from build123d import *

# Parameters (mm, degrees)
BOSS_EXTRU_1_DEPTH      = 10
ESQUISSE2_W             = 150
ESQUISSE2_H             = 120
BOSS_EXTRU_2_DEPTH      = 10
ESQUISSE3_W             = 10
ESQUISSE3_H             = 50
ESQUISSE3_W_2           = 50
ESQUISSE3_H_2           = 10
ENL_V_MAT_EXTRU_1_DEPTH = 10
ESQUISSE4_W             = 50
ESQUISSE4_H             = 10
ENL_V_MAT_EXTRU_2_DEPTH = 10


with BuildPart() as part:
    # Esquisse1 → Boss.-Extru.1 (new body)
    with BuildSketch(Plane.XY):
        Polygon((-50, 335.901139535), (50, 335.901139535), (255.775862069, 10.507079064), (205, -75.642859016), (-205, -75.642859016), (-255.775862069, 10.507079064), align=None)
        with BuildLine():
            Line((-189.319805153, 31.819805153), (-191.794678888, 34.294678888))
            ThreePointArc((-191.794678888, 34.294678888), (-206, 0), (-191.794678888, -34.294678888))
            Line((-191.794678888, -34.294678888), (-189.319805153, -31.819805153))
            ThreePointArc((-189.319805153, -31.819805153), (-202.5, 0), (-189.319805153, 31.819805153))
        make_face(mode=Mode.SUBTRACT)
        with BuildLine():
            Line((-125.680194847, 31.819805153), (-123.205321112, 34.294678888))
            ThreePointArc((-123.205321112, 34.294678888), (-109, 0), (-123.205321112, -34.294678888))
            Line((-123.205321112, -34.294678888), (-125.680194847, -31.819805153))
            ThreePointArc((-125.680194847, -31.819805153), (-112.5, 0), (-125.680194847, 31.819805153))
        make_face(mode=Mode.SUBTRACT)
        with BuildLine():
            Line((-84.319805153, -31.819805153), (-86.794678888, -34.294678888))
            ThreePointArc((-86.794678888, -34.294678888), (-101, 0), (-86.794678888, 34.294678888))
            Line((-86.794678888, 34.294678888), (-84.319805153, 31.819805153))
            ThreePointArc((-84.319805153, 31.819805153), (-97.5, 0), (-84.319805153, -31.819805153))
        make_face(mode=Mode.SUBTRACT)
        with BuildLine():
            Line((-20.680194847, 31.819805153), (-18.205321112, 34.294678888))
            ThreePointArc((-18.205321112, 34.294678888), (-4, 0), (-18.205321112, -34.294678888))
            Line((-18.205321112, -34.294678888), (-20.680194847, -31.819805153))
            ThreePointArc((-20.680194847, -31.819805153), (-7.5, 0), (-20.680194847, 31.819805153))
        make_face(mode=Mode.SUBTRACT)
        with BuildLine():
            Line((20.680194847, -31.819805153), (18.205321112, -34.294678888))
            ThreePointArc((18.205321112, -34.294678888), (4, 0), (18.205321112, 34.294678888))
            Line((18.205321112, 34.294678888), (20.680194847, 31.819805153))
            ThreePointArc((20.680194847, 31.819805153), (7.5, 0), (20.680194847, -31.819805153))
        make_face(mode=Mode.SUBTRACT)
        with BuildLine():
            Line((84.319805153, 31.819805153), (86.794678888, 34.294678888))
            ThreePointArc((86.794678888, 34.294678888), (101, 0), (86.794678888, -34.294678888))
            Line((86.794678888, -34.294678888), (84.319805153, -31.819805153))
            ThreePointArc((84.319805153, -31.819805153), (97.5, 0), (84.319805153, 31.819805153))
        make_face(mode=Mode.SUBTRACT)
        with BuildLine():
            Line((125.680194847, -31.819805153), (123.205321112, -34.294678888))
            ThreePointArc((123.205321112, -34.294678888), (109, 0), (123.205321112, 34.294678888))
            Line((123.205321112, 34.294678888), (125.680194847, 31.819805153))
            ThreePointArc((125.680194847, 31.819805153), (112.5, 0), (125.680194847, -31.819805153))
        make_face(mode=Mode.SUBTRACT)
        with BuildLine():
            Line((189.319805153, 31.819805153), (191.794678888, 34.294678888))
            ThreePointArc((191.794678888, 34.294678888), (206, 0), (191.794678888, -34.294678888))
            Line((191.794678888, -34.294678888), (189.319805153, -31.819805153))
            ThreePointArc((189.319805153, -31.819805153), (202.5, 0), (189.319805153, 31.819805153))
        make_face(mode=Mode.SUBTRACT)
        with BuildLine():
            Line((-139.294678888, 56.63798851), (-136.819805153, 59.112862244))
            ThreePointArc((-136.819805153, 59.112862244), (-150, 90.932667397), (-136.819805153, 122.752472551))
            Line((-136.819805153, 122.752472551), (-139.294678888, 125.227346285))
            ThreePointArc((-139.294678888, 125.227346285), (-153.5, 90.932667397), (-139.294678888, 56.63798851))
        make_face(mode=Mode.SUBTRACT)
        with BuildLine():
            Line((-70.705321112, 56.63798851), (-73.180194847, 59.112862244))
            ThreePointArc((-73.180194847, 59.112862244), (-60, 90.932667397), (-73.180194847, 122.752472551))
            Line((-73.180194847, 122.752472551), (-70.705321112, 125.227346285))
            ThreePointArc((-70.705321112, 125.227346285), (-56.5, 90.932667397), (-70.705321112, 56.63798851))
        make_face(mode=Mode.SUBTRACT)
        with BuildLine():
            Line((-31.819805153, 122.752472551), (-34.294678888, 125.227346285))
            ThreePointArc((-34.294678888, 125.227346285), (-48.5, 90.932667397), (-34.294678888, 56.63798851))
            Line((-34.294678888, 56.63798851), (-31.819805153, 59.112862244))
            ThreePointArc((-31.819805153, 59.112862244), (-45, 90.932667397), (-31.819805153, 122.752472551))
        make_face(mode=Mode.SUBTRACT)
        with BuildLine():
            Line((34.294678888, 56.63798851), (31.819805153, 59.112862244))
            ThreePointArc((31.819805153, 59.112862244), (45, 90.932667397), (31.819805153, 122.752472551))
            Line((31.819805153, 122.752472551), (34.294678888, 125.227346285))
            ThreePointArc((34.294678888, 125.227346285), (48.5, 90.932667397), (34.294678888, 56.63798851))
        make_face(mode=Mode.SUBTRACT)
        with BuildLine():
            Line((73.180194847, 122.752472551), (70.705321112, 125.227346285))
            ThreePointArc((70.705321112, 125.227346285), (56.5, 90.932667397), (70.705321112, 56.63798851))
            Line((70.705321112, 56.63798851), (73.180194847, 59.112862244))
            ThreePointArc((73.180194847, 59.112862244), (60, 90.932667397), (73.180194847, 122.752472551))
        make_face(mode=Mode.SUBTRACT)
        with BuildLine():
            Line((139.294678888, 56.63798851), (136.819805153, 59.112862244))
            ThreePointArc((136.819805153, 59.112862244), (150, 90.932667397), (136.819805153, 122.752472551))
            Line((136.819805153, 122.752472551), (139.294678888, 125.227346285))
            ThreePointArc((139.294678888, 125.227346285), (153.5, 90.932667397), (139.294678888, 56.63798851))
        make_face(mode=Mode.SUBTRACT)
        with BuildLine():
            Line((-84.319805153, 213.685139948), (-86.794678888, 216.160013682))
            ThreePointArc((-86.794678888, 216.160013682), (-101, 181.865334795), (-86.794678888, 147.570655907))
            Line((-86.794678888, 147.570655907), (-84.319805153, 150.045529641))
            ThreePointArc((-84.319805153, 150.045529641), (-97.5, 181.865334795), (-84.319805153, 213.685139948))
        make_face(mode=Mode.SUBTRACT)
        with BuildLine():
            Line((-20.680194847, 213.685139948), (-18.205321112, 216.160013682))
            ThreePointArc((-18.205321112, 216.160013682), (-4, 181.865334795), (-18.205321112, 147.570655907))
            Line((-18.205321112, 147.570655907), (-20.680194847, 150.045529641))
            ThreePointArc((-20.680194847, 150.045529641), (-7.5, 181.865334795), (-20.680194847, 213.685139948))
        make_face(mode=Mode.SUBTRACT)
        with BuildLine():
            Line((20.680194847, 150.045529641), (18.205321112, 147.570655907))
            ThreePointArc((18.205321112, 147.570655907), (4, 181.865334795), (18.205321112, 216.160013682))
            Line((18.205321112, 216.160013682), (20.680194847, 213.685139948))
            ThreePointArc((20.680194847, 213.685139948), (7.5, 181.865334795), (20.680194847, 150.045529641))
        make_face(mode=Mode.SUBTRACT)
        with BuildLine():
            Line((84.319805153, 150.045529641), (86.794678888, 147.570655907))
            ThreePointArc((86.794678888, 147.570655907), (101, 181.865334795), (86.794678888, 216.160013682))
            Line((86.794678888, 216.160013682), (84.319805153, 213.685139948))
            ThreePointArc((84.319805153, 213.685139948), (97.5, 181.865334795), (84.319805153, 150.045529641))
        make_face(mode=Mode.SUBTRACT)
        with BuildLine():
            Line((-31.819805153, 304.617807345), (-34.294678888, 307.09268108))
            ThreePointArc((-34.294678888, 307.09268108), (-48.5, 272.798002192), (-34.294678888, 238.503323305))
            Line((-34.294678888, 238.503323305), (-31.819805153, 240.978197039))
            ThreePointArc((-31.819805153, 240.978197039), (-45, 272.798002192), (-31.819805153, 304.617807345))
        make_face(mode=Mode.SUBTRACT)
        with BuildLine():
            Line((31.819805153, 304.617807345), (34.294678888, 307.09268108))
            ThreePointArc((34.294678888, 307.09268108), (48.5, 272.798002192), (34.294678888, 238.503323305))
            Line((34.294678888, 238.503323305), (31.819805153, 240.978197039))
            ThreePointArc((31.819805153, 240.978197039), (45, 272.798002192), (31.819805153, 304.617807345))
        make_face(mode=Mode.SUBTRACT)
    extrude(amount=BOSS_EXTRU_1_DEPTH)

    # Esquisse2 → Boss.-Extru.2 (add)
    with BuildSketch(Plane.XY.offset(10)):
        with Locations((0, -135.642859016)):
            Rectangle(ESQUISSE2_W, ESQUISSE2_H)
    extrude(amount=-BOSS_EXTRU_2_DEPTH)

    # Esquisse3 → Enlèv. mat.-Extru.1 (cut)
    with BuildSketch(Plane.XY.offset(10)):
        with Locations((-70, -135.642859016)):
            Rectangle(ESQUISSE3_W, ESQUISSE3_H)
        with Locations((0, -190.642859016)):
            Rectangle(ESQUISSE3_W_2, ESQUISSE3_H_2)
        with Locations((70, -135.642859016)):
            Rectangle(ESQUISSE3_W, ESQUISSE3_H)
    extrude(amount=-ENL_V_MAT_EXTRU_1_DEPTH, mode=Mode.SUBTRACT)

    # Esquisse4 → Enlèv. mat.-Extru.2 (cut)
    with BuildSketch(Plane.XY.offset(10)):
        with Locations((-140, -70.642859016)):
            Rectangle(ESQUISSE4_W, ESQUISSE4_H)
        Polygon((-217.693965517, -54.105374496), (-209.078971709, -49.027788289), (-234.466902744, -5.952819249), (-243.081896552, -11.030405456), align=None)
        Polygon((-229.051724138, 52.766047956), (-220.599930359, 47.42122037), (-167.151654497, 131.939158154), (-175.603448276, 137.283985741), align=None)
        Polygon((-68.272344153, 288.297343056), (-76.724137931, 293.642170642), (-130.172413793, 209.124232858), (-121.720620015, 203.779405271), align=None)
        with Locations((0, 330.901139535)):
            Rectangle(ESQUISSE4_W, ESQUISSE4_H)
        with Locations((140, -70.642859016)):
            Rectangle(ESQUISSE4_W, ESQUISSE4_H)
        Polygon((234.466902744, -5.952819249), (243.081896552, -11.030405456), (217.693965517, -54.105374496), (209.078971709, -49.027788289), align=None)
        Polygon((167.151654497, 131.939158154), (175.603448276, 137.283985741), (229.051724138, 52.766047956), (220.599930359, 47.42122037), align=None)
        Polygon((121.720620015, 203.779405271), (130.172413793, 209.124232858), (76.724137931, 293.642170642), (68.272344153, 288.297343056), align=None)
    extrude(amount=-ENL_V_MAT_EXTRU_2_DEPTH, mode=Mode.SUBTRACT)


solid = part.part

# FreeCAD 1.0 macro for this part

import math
import FreeCAD as App
import Part
import Sketcher
Q = App.Units.Quantity

doc = App.newDocument("Part")
params = doc.addObject("Spreadsheet::Sheet", "Params")
for row, (alias, value) in enumerate([
    ("sketch1_radius", "45 mm"),
    ("sketch1_radius2", "48.5 mm"),
    ("sketch1_width", "100 mm"),
    ("sketch1_width2", "410 mm"),
    ("sketch1_length", "385 mm"),
    ("pad1_length", "10 mm"),
    ("sketch2_width", "150 mm"),
    ("sketch2_height", "120 mm"),
    ("pad2_length", "10 mm"),
    ("sketch3_width", "10 mm"),
    ("sketch3_width2", "50 mm"),
    ("pocket1_length", "10 mm"),
    ("sketch4_width", "50 mm"),
    ("sketch4_height", "10 mm"),
    ("sketch4_length", "10 mm"),
    ("sketch4_length2", "50 mm"),
    ("sketch4_length3", "100 mm"),
    ("pocket2_length", "10 mm"),
], start=1):
    params.set(f"A{row}", alias)
    params.set(f"B{row}", "=" + value)
    params.setAlias(f"B{row}", alias)

body = doc.addObject("PartDesign::Body", "Body")

# Sketch on XY plane
sketch1 = body.newObject("Sketcher::SketchObject", "Sketch")
sketch1.AttachmentSupport = (doc.getObject("XY_Plane"), [""])
sketch1.MapMode = "FlatFace"
sketch1.addGeometry([
    Part.LineSegment(App.Vector(50, 335.90114, 0), App.Vector(-50, 335.90114, 0)),  # 0
    Part.LineSegment(App.Vector(-50, 335.90114, 0), App.Vector(-255.775862, 10.507079, 0)),  # 1
    Part.LineSegment(App.Vector(-255.775862, 10.507079, 0), App.Vector(-205, -75.642859, 0)),  # 2
    Part.LineSegment(App.Vector(-205, -75.642859, 0), App.Vector(205, -75.642859, 0)),  # 3
    Part.LineSegment(App.Vector(205, -75.642859, 0), App.Vector(255.775862, 10.507079, 0)),  # 4
    Part.LineSegment(App.Vector(255.775862, 10.507079, 0), App.Vector(50, 335.90114, 0)),  # 5
    Part.LineSegment(App.Vector(189.319805, 31.819805, 0), App.Vector(191.794679, 34.294679, 0)),  # 6
    Part.ArcOfCircle(Part.Circle(App.Vector(157.5, 0, 0), App.Vector(0, 0, 1), 48.5), math.radians(-45), math.radians(45)),  # 7
    Part.LineSegment(App.Vector(191.794679, -34.294679, 0), App.Vector(189.319805, -31.819805, 0)),  # 8
    Part.ArcOfCircle(Part.Circle(App.Vector(157.5, 0, 0), App.Vector(0, 0, 1), 45), math.radians(-45), math.radians(45)),  # 9
    Part.LineSegment(App.Vector(125.680195, -31.819805, 0), App.Vector(123.205321, -34.294679, 0)),  # 10
    Part.ArcOfCircle(Part.Circle(App.Vector(157.5, 0, 0), App.Vector(0, 0, 1), 48.5), math.radians(135), math.radians(225)),  # 11
    Part.LineSegment(App.Vector(123.205321, 34.294679, 0), App.Vector(125.680195, 31.819805, 0)),  # 12
    Part.ArcOfCircle(Part.Circle(App.Vector(157.5, 0, 0), App.Vector(0, 0, 1), 45), math.radians(135), math.radians(225)),  # 13
    Part.LineSegment(App.Vector(84.319805, 31.819805, 0), App.Vector(86.794679, 34.294679, 0)),  # 14
    Part.ArcOfCircle(Part.Circle(App.Vector(52.5, 0, 0), App.Vector(0, 0, 1), 48.5), math.radians(-45), math.radians(45)),  # 15
    Part.LineSegment(App.Vector(86.794679, -34.294679, 0), App.Vector(84.319805, -31.819805, 0)),  # 16
    Part.ArcOfCircle(Part.Circle(App.Vector(52.5, 0, 0), App.Vector(0, 0, 1), 45), math.radians(-45), math.radians(45)),  # 17
    Part.LineSegment(App.Vector(20.680195, -31.819805, 0), App.Vector(18.205321, -34.294679, 0)),  # 18
    Part.ArcOfCircle(Part.Circle(App.Vector(52.5, 0, 0), App.Vector(0, 0, 1), 48.5), math.radians(135), math.radians(225)),  # 19
    Part.LineSegment(App.Vector(18.205321, 34.294679, 0), App.Vector(20.680195, 31.819805, 0)),  # 20
    Part.ArcOfCircle(Part.Circle(App.Vector(52.5, 0, 0), App.Vector(0, 0, 1), 45), math.radians(135), math.radians(225)),  # 21
    Part.LineSegment(App.Vector(139.294679, 56.637989, 0), App.Vector(136.819805, 59.112862, 0)),  # 22
    Part.ArcOfCircle(Part.Circle(App.Vector(105, 90.932667, 0), App.Vector(0, 0, 1), 45), math.radians(-45), math.radians(45)),  # 23
    Part.LineSegment(App.Vector(136.819805, 122.752473, 0), App.Vector(139.294679, 125.227346, 0)),  # 24
    Part.ArcOfCircle(Part.Circle(App.Vector(105, 90.932667, 0), App.Vector(0, 0, 1), 48.5), math.radians(-45), math.radians(45)),  # 25
    Part.ArcOfCircle(Part.Circle(App.Vector(105, 90.932667, 0), App.Vector(0, 0, 1), 45), math.radians(135), math.radians(225)),  # 26
    Part.LineSegment(App.Vector(73.180195, 59.112862, 0), App.Vector(70.705321, 56.637989, 0)),  # 27
    Part.ArcOfCircle(Part.Circle(App.Vector(105, 90.932667, 0), App.Vector(0, 0, 1), 48.5), math.radians(135), math.radians(225)),  # 28
    Part.LineSegment(App.Vector(70.705321, 125.227346, 0), App.Vector(73.180195, 122.752473, 0)),  # 29
    Part.LineSegment(App.Vector(34.294679, 56.637989, 0), App.Vector(31.819805, 59.112862, 0)),  # 30
    Part.ArcOfCircle(Part.Circle(App.Vector(0, 90.932667, 0), App.Vector(0, 0, 1), 45), math.radians(-45), math.radians(45)),  # 31
    Part.LineSegment(App.Vector(31.819805, 122.752473, 0), App.Vector(34.294679, 125.227346, 0)),  # 32
    Part.ArcOfCircle(Part.Circle(App.Vector(0, 90.932667, 0), App.Vector(0, 0, 1), 48.5), math.radians(-45), math.radians(45)),  # 33
    Part.LineSegment(App.Vector(-20.680195, 31.819805, 0), App.Vector(-18.205321, 34.294679, 0)),  # 34
    Part.ArcOfCircle(Part.Circle(App.Vector(-52.5, 0, 0), App.Vector(0, 0, 1), 48.5), math.radians(-45), math.radians(45)),  # 35
    Part.LineSegment(App.Vector(-18.205321, -34.294679, 0), App.Vector(-20.680195, -31.819805, 0)),  # 36
    Part.ArcOfCircle(Part.Circle(App.Vector(-52.5, 0, 0), App.Vector(0, 0, 1), 45), math.radians(-45), math.radians(45)),  # 37
    Part.LineSegment(App.Vector(-84.319805, -31.819805, 0), App.Vector(-86.794679, -34.294679, 0)),  # 38
    Part.ArcOfCircle(Part.Circle(App.Vector(-52.5, 0, 0), App.Vector(0, 0, 1), 48.5), math.radians(135), math.radians(225)),  # 39
    Part.LineSegment(App.Vector(-86.794679, 34.294679, 0), App.Vector(-84.319805, 31.819805, 0)),  # 40
    Part.ArcOfCircle(Part.Circle(App.Vector(-52.5, 0, 0), App.Vector(0, 0, 1), 45), math.radians(135), math.radians(225)),  # 41
    Part.LineSegment(App.Vector(-125.680195, 31.819805, 0), App.Vector(-123.205321, 34.294679, 0)),  # 42
    Part.ArcOfCircle(Part.Circle(App.Vector(-157.5, 0, 0), App.Vector(0, 0, 1), 48.5), math.radians(-45), math.radians(45)),  # 43
    Part.LineSegment(App.Vector(-123.205321, -34.294679, 0), App.Vector(-125.680195, -31.819805, 0)),  # 44
    Part.ArcOfCircle(Part.Circle(App.Vector(-157.5, 0, 0), App.Vector(0, 0, 1), 45), math.radians(-45), math.radians(45)),  # 45
    Part.ArcOfCircle(Part.Circle(App.Vector(-157.5, 0, 0), App.Vector(0, 0, 1), 45), math.radians(135), math.radians(225)),  # 46
    Part.LineSegment(App.Vector(-189.319805, -31.819805, 0), App.Vector(-191.794679, -34.294679, 0)),  # 47
    Part.ArcOfCircle(Part.Circle(App.Vector(-157.5, 0, 0), App.Vector(0, 0, 1), 48.5), math.radians(135), math.radians(225)),  # 48
    Part.LineSegment(App.Vector(-191.794679, 34.294679, 0), App.Vector(-189.319805, 31.819805, 0)),  # 49
    Part.ArcOfCircle(Part.Circle(App.Vector(0, 90.932667, 0), App.Vector(0, 0, 1), 45), math.radians(135), math.radians(225)),  # 50
    Part.LineSegment(App.Vector(-31.819805, 59.112862, 0), App.Vector(-34.294679, 56.637989, 0)),  # 51
    Part.ArcOfCircle(Part.Circle(App.Vector(0, 90.932667, 0), App.Vector(0, 0, 1), 48.5), math.radians(135), math.radians(225)),  # 52
    Part.LineSegment(App.Vector(-34.294679, 125.227346, 0), App.Vector(-31.819805, 122.752473, 0)),  # 53
    Part.LineSegment(App.Vector(-70.705321, 56.637989, 0), App.Vector(-73.180195, 59.112862, 0)),  # 54
    Part.ArcOfCircle(Part.Circle(App.Vector(-105, 90.932667, 0), App.Vector(0, 0, 1), 45), math.radians(-45), math.radians(45)),  # 55
    Part.LineSegment(App.Vector(-73.180195, 122.752473, 0), App.Vector(-70.705321, 125.227346, 0)),  # 56
    Part.ArcOfCircle(Part.Circle(App.Vector(-105, 90.932667, 0), App.Vector(0, 0, 1), 48.5), math.radians(-45), math.radians(45)),  # 57
    Part.ArcOfCircle(Part.Circle(App.Vector(-105, 90.932667, 0), App.Vector(0, 0, 1), 48.5), math.radians(135), math.radians(225)),  # 58
    Part.LineSegment(App.Vector(-139.294679, 125.227346, 0), App.Vector(-136.819805, 122.752473, 0)),  # 59
    Part.ArcOfCircle(Part.Circle(App.Vector(-105, 90.932667, 0), App.Vector(0, 0, 1), 45), math.radians(135), math.radians(225)),  # 60
    Part.LineSegment(App.Vector(-136.819805, 59.112862, 0), App.Vector(-139.294679, 56.637989, 0)),  # 61
    Part.ArcOfCircle(Part.Circle(App.Vector(52.5, 181.865335, 0), App.Vector(0, 0, 1), 45), math.radians(-45), math.radians(45)),  # 62
    Part.LineSegment(App.Vector(84.319805, 213.68514, 0), App.Vector(86.794679, 216.160014, 0)),  # 63
    Part.ArcOfCircle(Part.Circle(App.Vector(52.5, 181.865335, 0), App.Vector(0, 0, 1), 48.5), math.radians(-45), math.radians(45)),  # 64
    Part.LineSegment(App.Vector(86.794679, 147.570656, 0), App.Vector(84.319805, 150.04553, 0)),  # 65
    Part.LineSegment(App.Vector(20.680195, 150.04553, 0), App.Vector(18.205321, 147.570656, 0)),  # 66
    Part.ArcOfCircle(Part.Circle(App.Vector(52.5, 181.865335, 0), App.Vector(0, 0, 1), 48.5), math.radians(135), math.radians(225)),  # 67
    Part.LineSegment(App.Vector(18.205321, 216.160014, 0), App.Vector(20.680195, 213.68514, 0)),  # 68
    Part.ArcOfCircle(Part.Circle(App.Vector(52.5, 181.865335, 0), App.Vector(0, 0, 1), 45), math.radians(135), math.radians(225)),  # 69
    Part.LineSegment(App.Vector(31.819805, 304.617807, 0), App.Vector(34.294679, 307.092681, 0)),  # 70
    Part.ArcOfCircle(Part.Circle(App.Vector(0, 272.798002, 0), App.Vector(0, 0, 1), 48.5), math.radians(-45), math.radians(45)),  # 71
    Part.LineSegment(App.Vector(34.294679, 238.503323, 0), App.Vector(31.819805, 240.978197, 0)),  # 72
    Part.ArcOfCircle(Part.Circle(App.Vector(0, 272.798002, 0), App.Vector(0, 0, 1), 45), math.radians(-45), math.radians(45)),  # 73
    Part.LineSegment(App.Vector(-20.680195, 213.68514, 0), App.Vector(-18.205321, 216.160014, 0)),  # 74
    Part.ArcOfCircle(Part.Circle(App.Vector(-52.5, 181.865335, 0), App.Vector(0, 0, 1), 48.5), math.radians(-45), math.radians(45)),  # 75
    Part.LineSegment(App.Vector(-18.205321, 147.570656, 0), App.Vector(-20.680195, 150.04553, 0)),  # 76
    Part.ArcOfCircle(Part.Circle(App.Vector(-52.5, 181.865335, 0), App.Vector(0, 0, 1), 45), math.radians(-45), math.radians(45)),  # 77
    Part.ArcOfCircle(Part.Circle(App.Vector(-52.5, 181.865335, 0), App.Vector(0, 0, 1), 45), math.radians(135), math.radians(225)),  # 78
    Part.LineSegment(App.Vector(-84.319805, 150.04553, 0), App.Vector(-86.794679, 147.570656, 0)),  # 79
    Part.ArcOfCircle(Part.Circle(App.Vector(-52.5, 181.865335, 0), App.Vector(0, 0, 1), 48.5), math.radians(135), math.radians(225)),  # 80
    Part.LineSegment(App.Vector(-86.794679, 216.160014, 0), App.Vector(-84.319805, 213.68514, 0)),  # 81
    Part.ArcOfCircle(Part.Circle(App.Vector(0, 272.798002, 0), App.Vector(0, 0, 1), 45), math.radians(135), math.radians(225)),  # 82
    Part.LineSegment(App.Vector(-31.819805, 240.978197, 0), App.Vector(-34.294679, 238.503323, 0)),  # 83
    Part.ArcOfCircle(Part.Circle(App.Vector(0, 272.798002, 0), App.Vector(0, 0, 1), 48.5), math.radians(135), math.radians(225)),  # 84
    Part.LineSegment(App.Vector(-34.294679, 307.092681, 0), App.Vector(-31.819805, 304.617807, 0)),  # 85
], False)
sketch1.addConstraint([
    Sketcher.Constraint("Coincident", 0, 2, 1, 1),
    Sketcher.Constraint("Coincident", 1, 2, 2, 1),
    Sketcher.Constraint("Coincident", 2, 2, 3, 1),
    Sketcher.Constraint("Coincident", 3, 2, 4, 1),
    Sketcher.Constraint("Coincident", 4, 2, 5, 1),
    Sketcher.Constraint("Coincident", 5, 2, 0, 1),
    Sketcher.Constraint("Coincident", 6, 2, 7, 2),
    Sketcher.Constraint("Coincident", 7, 1, 8, 1),
    Sketcher.Constraint("Coincident", 8, 2, 9, 1),
    Sketcher.Constraint("Coincident", 9, 2, 6, 1),
    Sketcher.Constraint("Coincident", 10, 2, 11, 2),
    Sketcher.Constraint("Coincident", 11, 1, 12, 1),
    Sketcher.Constraint("Coincident", 12, 2, 13, 1),
    Sketcher.Constraint("Coincident", 13, 2, 10, 1),
    Sketcher.Constraint("Coincident", 14, 2, 15, 2),
    Sketcher.Constraint("Coincident", 15, 1, 16, 1),
    Sketcher.Constraint("Coincident", 16, 2, 17, 1),
    Sketcher.Constraint("Coincident", 17, 2, 14, 1),
    Sketcher.Constraint("Coincident", 18, 2, 19, 2),
    Sketcher.Constraint("Coincident", 19, 1, 20, 1),
    Sketcher.Constraint("Coincident", 20, 2, 21, 1),
    Sketcher.Constraint("Coincident", 21, 2, 18, 1),
    Sketcher.Constraint("Coincident", 22, 2, 23, 1),
    Sketcher.Constraint("Coincident", 23, 2, 24, 1),
    Sketcher.Constraint("Coincident", 24, 2, 25, 2),
    Sketcher.Constraint("Coincident", 25, 1, 22, 1),
    Sketcher.Constraint("Coincident", 26, 2, 27, 1),
    Sketcher.Constraint("Coincident", 27, 2, 28, 2),
    Sketcher.Constraint("Coincident", 28, 1, 29, 1),
    Sketcher.Constraint("Coincident", 29, 2, 26, 1),
    Sketcher.Constraint("Coincident", 30, 2, 31, 1),
    Sketcher.Constraint("Coincident", 31, 2, 32, 1),
    Sketcher.Constraint("Coincident", 32, 2, 33, 2),
    Sketcher.Constraint("Coincident", 33, 1, 30, 1),
    Sketcher.Constraint("Coincident", 34, 2, 35, 2),
    Sketcher.Constraint("Coincident", 35, 1, 36, 1),
    Sketcher.Constraint("Coincident", 36, 2, 37, 1),
    Sketcher.Constraint("Coincident", 37, 2, 34, 1),
    Sketcher.Constraint("Coincident", 38, 2, 39, 2),
    Sketcher.Constraint("Coincident", 39, 1, 40, 1),
    Sketcher.Constraint("Coincident", 40, 2, 41, 1),
    Sketcher.Constraint("Coincident", 41, 2, 38, 1),
    Sketcher.Constraint("Coincident", 42, 2, 43, 2),
    Sketcher.Constraint("Coincident", 43, 1, 44, 1),
    Sketcher.Constraint("Coincident", 44, 2, 45, 1),
    Sketcher.Constraint("Coincident", 45, 2, 42, 1),
    Sketcher.Constraint("Coincident", 46, 2, 47, 1),
    Sketcher.Constraint("Coincident", 47, 2, 48, 2),
    Sketcher.Constraint("Coincident", 48, 1, 49, 1),
    Sketcher.Constraint("Coincident", 49, 2, 46, 1),
    Sketcher.Constraint("Coincident", 50, 2, 51, 1),
    Sketcher.Constraint("Coincident", 51, 2, 52, 2),
    Sketcher.Constraint("Coincident", 52, 1, 53, 1),
    Sketcher.Constraint("Coincident", 53, 2, 50, 1),
    Sketcher.Constraint("Coincident", 54, 2, 55, 1),
    Sketcher.Constraint("Coincident", 55, 2, 56, 1),
    Sketcher.Constraint("Coincident", 56, 2, 57, 2),
    Sketcher.Constraint("Coincident", 57, 1, 54, 1),
    Sketcher.Constraint("Coincident", 58, 1, 59, 1),
    Sketcher.Constraint("Coincident", 59, 2, 60, 1),
    Sketcher.Constraint("Coincident", 60, 2, 61, 1),
    Sketcher.Constraint("Coincident", 61, 2, 58, 2),
    Sketcher.Constraint("Coincident", 62, 2, 63, 1),
    Sketcher.Constraint("Coincident", 63, 2, 64, 2),
    Sketcher.Constraint("Coincident", 64, 1, 65, 1),
    Sketcher.Constraint("Coincident", 65, 2, 62, 1),
    Sketcher.Constraint("Coincident", 66, 2, 67, 2),
    Sketcher.Constraint("Coincident", 67, 1, 68, 1),
    Sketcher.Constraint("Coincident", 68, 2, 69, 1),
    Sketcher.Constraint("Coincident", 69, 2, 66, 1),
    Sketcher.Constraint("Coincident", 70, 2, 71, 2),
    Sketcher.Constraint("Coincident", 71, 1, 72, 1),
    Sketcher.Constraint("Coincident", 72, 2, 73, 1),
    Sketcher.Constraint("Coincident", 73, 2, 70, 1),
    Sketcher.Constraint("Coincident", 74, 2, 75, 2),
    Sketcher.Constraint("Coincident", 75, 1, 76, 1),
    Sketcher.Constraint("Coincident", 76, 2, 77, 1),
    Sketcher.Constraint("Coincident", 77, 2, 74, 1),
    Sketcher.Constraint("Coincident", 78, 2, 79, 1),
    Sketcher.Constraint("Coincident", 79, 2, 80, 2),
    Sketcher.Constraint("Coincident", 80, 1, 81, 1),
    Sketcher.Constraint("Coincident", 81, 2, 78, 1),
    Sketcher.Constraint("Coincident", 82, 2, 83, 1),
    Sketcher.Constraint("Coincident", 83, 2, 84, 2),
    Sketcher.Constraint("Coincident", 84, 1, 85, 1),
    Sketcher.Constraint("Coincident", 85, 2, 82, 1),
    Sketcher.Constraint("Horizontal", 0),
    Sketcher.Constraint("Horizontal", 3),
    Sketcher.Constraint("Coincident", 9, 3, 7, 3),
    Sketcher.Constraint("Coincident", 11, 3, 7, 3),
    Sketcher.Constraint("Coincident", 13, 3, 7, 3),
    Sketcher.Constraint("Coincident", 17, 3, 15, 3),
    Sketcher.Constraint("Coincident", 19, 3, 15, 3),
    Sketcher.Constraint("Coincident", 21, 3, 15, 3),
    Sketcher.Constraint("Coincident", 25, 3, 23, 3),
    Sketcher.Constraint("Coincident", 26, 3, 23, 3),
    Sketcher.Constraint("Coincident", 28, 3, 23, 3),
    Sketcher.Constraint("Coincident", 33, 3, 31, 3),
    Sketcher.Constraint("Coincident", 37, 3, 35, 3),
    Sketcher.Constraint("Coincident", 39, 3, 35, 3),
    Sketcher.Constraint("Coincident", 41, 3, 35, 3),
    Sketcher.Constraint("Coincident", 45, 3, 43, 3),
    Sketcher.Constraint("Coincident", 46, 3, 43, 3),
    Sketcher.Constraint("Coincident", 48, 3, 43, 3),
    Sketcher.Constraint("Coincident", 50, 3, 31, 3),
    Sketcher.Constraint("Coincident", 52, 3, 31, 3),
    Sketcher.Constraint("Coincident", 57, 3, 55, 3),
    Sketcher.Constraint("Coincident", 58, 3, 55, 3),
    Sketcher.Constraint("Coincident", 60, 3, 55, 3),
    Sketcher.Constraint("Coincident", 64, 3, 62, 3),
    Sketcher.Constraint("Coincident", 67, 3, 62, 3),
    Sketcher.Constraint("Coincident", 69, 3, 62, 3),
    Sketcher.Constraint("Coincident", 73, 3, 71, 3),
    Sketcher.Constraint("Coincident", 77, 3, 75, 3),
    Sketcher.Constraint("Coincident", 78, 3, 75, 3),
    Sketcher.Constraint("Coincident", 80, 3, 75, 3),
    Sketcher.Constraint("Coincident", 82, 3, 71, 3),
    Sketcher.Constraint("Coincident", 84, 3, 71, 3),
    Sketcher.Constraint("Equal", 7, 11),
    Sketcher.Constraint("Equal", 9, 13),
    Sketcher.Constraint("Equal", 11, 15),
    Sketcher.Constraint("Equal", 13, 17),
    Sketcher.Constraint("Equal", 15, 19),
    Sketcher.Constraint("Equal", 17, 21),
    Sketcher.Constraint("Equal", 21, 23),
    Sketcher.Constraint("Equal", 19, 25),
    Sketcher.Constraint("Equal", 23, 26),
    Sketcher.Constraint("Equal", 25, 28),
    Sketcher.Constraint("Equal", 26, 31),
    Sketcher.Constraint("Equal", 28, 33),
    Sketcher.Constraint("Equal", 33, 35),
    Sketcher.Constraint("Equal", 31, 37),
    Sketcher.Constraint("Equal", 35, 39),
    Sketcher.Constraint("Equal", 37, 41),
    Sketcher.Constraint("Equal", 39, 43),
    Sketcher.Constraint("Equal", 41, 45),
    Sketcher.Constraint("Equal", 45, 46),
    Sketcher.Constraint("Equal", 43, 48),
    Sketcher.Constraint("Equal", 46, 50),
    Sketcher.Constraint("Equal", 48, 52),
    Sketcher.Constraint("Equal", 50, 55),
    Sketcher.Constraint("Equal", 52, 57),
    Sketcher.Constraint("Equal", 57, 58),
    Sketcher.Constraint("Equal", 55, 60),
    Sketcher.Constraint("Equal", 60, 62),
    Sketcher.Constraint("Equal", 58, 64),
    Sketcher.Constraint("Equal", 64, 67),
    Sketcher.Constraint("Equal", 62, 69),
    Sketcher.Constraint("Equal", 67, 71),
    Sketcher.Constraint("Equal", 69, 73),
    Sketcher.Constraint("Equal", 71, 75),
    Sketcher.Constraint("Equal", 73, 77),
    Sketcher.Constraint("Equal", 77, 78),
    Sketcher.Constraint("Equal", 75, 80),
    Sketcher.Constraint("Equal", 78, 82),
    Sketcher.Constraint("Equal", 80, 84),
    Sketcher.Constraint("Symmetric", 15, 3, 35, 3, -1, 1),
    Sketcher.Constraint("Symmetric", 7, 3, 43, 3, -1, 1),
    Sketcher.Constraint("Symmetric", 23, 3, 55, 3, -2),
    Sketcher.Constraint("Symmetric", 62, 3, 75, 3, -2),
    Sketcher.Constraint("Symmetric", 1, 2, 4, 2, -2),
    Sketcher.Constraint("Symmetric", 19, 1, 34, 2, -2),
    Sketcher.Constraint("Symmetric", 11, 1, 42, 2, -2),
    Sketcher.Constraint("Symmetric", 30, 2, 50, 2, -2),
    Sketcher.Constraint("Symmetric", 72, 2, 82, 2, -2),
    Sketcher.Constraint("Perpendicular", 6, 8),
    Sketcher.Constraint("Perpendicular", 8, 10),
    Sketcher.Constraint("Perpendicular", 10, 12),
    Sketcher.Constraint("Perpendicular", 12, 14),
    Sketcher.Constraint("Perpendicular", 14, 16),
    Sketcher.Constraint("Perpendicular", 16, 18),
    Sketcher.Constraint("Perpendicular", 18, 20),
    Sketcher.Constraint("Parallel", 20, 22),
    Sketcher.Constraint("Perpendicular", 22, 24),
    Sketcher.Constraint("Parallel", 24, 27),
    Sketcher.Constraint("Perpendicular", 27, 29),
    Sketcher.Constraint("Parallel", 29, 30),
    Sketcher.Constraint("Perpendicular", 30, 32),
    Sketcher.Constraint("Parallel", 32, 34),
    Sketcher.Constraint("Perpendicular", 34, 36),
    Sketcher.Constraint("Perpendicular", 36, 38),
    Sketcher.Constraint("Perpendicular", 38, 40),
    Sketcher.Constraint("Perpendicular", 40, 42),
    Sketcher.Constraint("Perpendicular", 42, 44),
    Sketcher.Constraint("Perpendicular", 44, 47),
    Sketcher.Constraint("Perpendicular", 47, 49),
    Sketcher.Constraint("Perpendicular", 49, 51),
    Sketcher.Constraint("Perpendicular", 51, 53),
    Sketcher.Constraint("Parallel", 53, 54),
    Sketcher.Constraint("Perpendicular", 54, 56),
    Sketcher.Constraint("Perpendicular", 56, 59),
    Sketcher.Constraint("Perpendicular", 59, 61),
    Sketcher.Constraint("Parallel", 61, 63),
    Sketcher.Constraint("Perpendicular", 63, 65),
    Sketcher.Constraint("Perpendicular", 65, 66),
    Sketcher.Constraint("Perpendicular", 66, 68),
    Sketcher.Constraint("Perpendicular", 68, 70),
    Sketcher.Constraint("Perpendicular", 70, 72),
    Sketcher.Constraint("Perpendicular", 72, 74),
    Sketcher.Constraint("Perpendicular", 74, 76),
    Sketcher.Constraint("Perpendicular", 76, 79),
    Sketcher.Constraint("Perpendicular", 79, 81),
    Sketcher.Constraint("Perpendicular", 81, 83),
    Sketcher.Constraint("Perpendicular", 83, 85),
    Sketcher.Constraint("Horizontal", 28, 3, 31, 3),
    Sketcher.Constraint("Horizontal", 7, 1, 10, 2),
    Sketcher.Constraint("Horizontal", 6, 2, 11, 1),
    Sketcher.Constraint("Horizontal", 9, 2, 12, 2),
    Sketcher.Constraint("Horizontal", 11, 1, 14, 2),
    Sketcher.Constraint("Horizontal", 10, 2, 15, 1),
    Sketcher.Constraint("Horizontal", 15, 1, 18, 2),
    Sketcher.Constraint("Horizontal", 14, 2, 19, 1),
    Sketcher.Constraint("Horizontal", 22, 2, 26, 2),
    Sketcher.Constraint("Horizontal", 24, 2, 28, 1),
    Sketcher.Constraint("Horizontal", 26, 2, 30, 2),
    Sketcher.Constraint("Horizontal", 29, 2, 31, 2),
    Sketcher.Constraint("Horizontal", 18, 2, 35, 1),
    Sketcher.Constraint("Horizontal", 35, 1, 38, 2),
    Sketcher.Constraint("Horizontal", 34, 2, 39, 1),
    Sketcher.Constraint("Horizontal", 38, 2, 43, 1),
    Sketcher.Constraint("Horizontal", 44, 2, 46, 2),
    Sketcher.Constraint("Horizontal", 42, 2, 48, 1),
    Sketcher.Constraint("Horizontal", 32, 2, 52, 1),
    Sketcher.Constraint("Horizontal", 50, 2, 54, 2),
    Sketcher.Constraint("Horizontal", 53, 2, 55, 2),
    Sketcher.Constraint("Horizontal", 56, 2, 58, 1),
    Sketcher.Constraint("Horizontal", 54, 2, 60, 2),
    Sketcher.Constraint("Horizontal", 64, 1, 66, 2),
    Sketcher.Constraint("Horizontal", 63, 2, 67, 1),
    Sketcher.Constraint("Horizontal", 67, 1, 74, 2),
    Sketcher.Constraint("Horizontal", 66, 2, 75, 1),
    Sketcher.Constraint("Horizontal", 76, 2, 78, 2),
    Sketcher.Constraint("Horizontal", 74, 2, 80, 1),
    Sketcher.Constraint("Horizontal", 70, 2, 84, 1),
    Sketcher.Constraint("Vertical", 21, 3, 62, 3),
    Sketcher.Constraint("Vertical", 6, 2, 7, 1),
    Sketcher.Constraint("Vertical", 22, 2, 23, 2),
    Sketcher.Constraint("Vertical", 17, 2, 62, 2),
    Sketcher.Constraint("Vertical", 63, 2, 64, 1),
    Sketcher.Constraint("Vertical", 33, 1, 70, 2),
    Sketcher.Constraint("Vertical", 70, 2, 71, 1),
    Sketcher.Constraint("Equal", 2, 4),
    Sketcher.Constraint("Equal", 1, 5),
    Sketcher.Constraint("Radius", 9, Q("45 mm")),
    Sketcher.Constraint("Radius", 7, Q("48.5 mm")),
    Sketcher.Constraint("DistanceX", 0, 2, 0, 1, Q("100 mm")),
    Sketcher.Constraint("DistanceX", 3, 1, 3, 2, Q("410 mm")),
    Sketcher.Constraint("Distance", 1, Q("385 mm")),
    Sketcher.Constraint("Distance", 2, Q("100 mm")),
    Sketcher.Constraint("DistanceX", -1, 1, 23, 3, Q("105 mm")),
    Sketcher.Constraint("DistanceX", -1, 1, 7, 3, Q("157.5 mm")),
    Sketcher.Constraint("DistanceX", -1, 1, 15, 3, Q("52.5 mm")),
    Sketcher.Constraint("DistanceY", -1, 1, 0, 2, Q("335.90114 mm")),
    Sketcher.Constraint("DistanceY", -1, 1, 1, 2, Q("10.507079 mm")),
    Sketcher.Constraint("DistanceX", -1, 1, 6, 2, Q("191.794679 mm")),
    Sketcher.Constraint("DistanceX", -1, 1, 24, 2, Q("139.294679 mm")),
    Sketcher.Constraint("DistanceY", -1, 1, 25, 1, Q("56.637989 mm")),
    Sketcher.Constraint("DistanceY", -1, 1, 62, 2, Q("213.68514 mm")),
    Sketcher.Constraint("DistanceY", -1, 1, 70, 2, Q("307.092681 mm")),
])
sketch1.setExpression("Constraints[243]", "Params.sketch1_radius")
sketch1.setExpression("Constraints[244]", "Params.sketch1_radius2")
sketch1.setExpression("Constraints[245]", "Params.sketch1_width")
sketch1.setExpression("Constraints[246]", "Params.sketch1_width2")
sketch1.setExpression("Constraints[247]", "Params.sketch1_length")
pad1 = body.newObject("PartDesign::Pad", "Pad")
pad1.Profile = sketch1
pad1.setExpression("Length", "Params.pad1_length")

# Sketch on XY plane
sketch2 = body.newObject("Sketcher::SketchObject", "Sketch001")
sketch2.AttachmentSupport = (doc.getObject("XY_Plane"), [""])
sketch2.MapMode = "FlatFace"
sketch2.AttachmentOffset = App.Placement(App.Vector(0, 0, 10), App.Rotation())
sketch2.addGeometry([
    Part.LineSegment(App.Vector(-75, -75.642859, 0), App.Vector(-75, -195.642859, 0)),
    Part.LineSegment(App.Vector(-75, -195.642859, 0), App.Vector(75, -195.642859, 0)),
    Part.LineSegment(App.Vector(75, -195.642859, 0), App.Vector(75, -75.642859, 0)),
    Part.LineSegment(App.Vector(75, -75.642859, 0), App.Vector(-75, -75.642859, 0)),
], False)
sketch2.addConstraint([
    Sketcher.Constraint("Coincident", 0, 2, 1, 1),
    Sketcher.Constraint("Coincident", 1, 2, 2, 1),
    Sketcher.Constraint("Coincident", 2, 2, 3, 1),
    Sketcher.Constraint("Coincident", 3, 2, 0, 1),
    Sketcher.Constraint("Vertical", 0),
    Sketcher.Constraint("Horizontal", 1),
    Sketcher.Constraint("Vertical", 2),
    Sketcher.Constraint("Horizontal", 3),
    Sketcher.Constraint("DistanceX", 1, 1, 1, 2, Q("150 mm")),
    Sketcher.Constraint("DistanceY", 0, 2, 0, 1, Q("120 mm")),
    Sketcher.Constraint("DistanceX", 0, 2, -1, 1, Q("75 mm")),
    Sketcher.Constraint("DistanceY", 0, 2, -1, 1, Q("195.642859 mm")),
])
sketch2.setExpression("Constraints[8]", "Params.sketch2_width")
sketch2.setExpression("Constraints[9]", "Params.sketch2_height")
pad2 = body.newObject("PartDesign::Pad", "Pad001")
pad2.Profile = sketch2
pad2.setExpression("Length", "Params.pad2_length")
pad2.Reversed = True

# Sketch on XY plane
sketch3 = body.newObject("Sketcher::SketchObject", "Sketch002")
sketch3.AttachmentSupport = (doc.getObject("XY_Plane"), [""])
sketch3.MapMode = "FlatFace"
sketch3.AttachmentOffset = App.Placement(App.Vector(0, 0, 10), App.Rotation())
sketch3.addGeometry([
    Part.LineSegment(App.Vector(-75, -110.642859, 0), App.Vector(-75, -160.642859, 0)),  # 0
    Part.LineSegment(App.Vector(-75, -160.642859, 0), App.Vector(-65, -160.642859, 0)),  # 1
    Part.LineSegment(App.Vector(-65, -160.642859, 0), App.Vector(-65, -110.642859, 0)),  # 2
    Part.LineSegment(App.Vector(-65, -110.642859, 0), App.Vector(-75, -110.642859, 0)),  # 3
    Part.LineSegment(App.Vector(-25, -185.642859, 0), App.Vector(-25, -195.642859, 0)),  # 4
    Part.LineSegment(App.Vector(-25, -195.642859, 0), App.Vector(25, -195.642859, 0)),  # 5
    Part.LineSegment(App.Vector(25, -195.642859, 0), App.Vector(25, -185.642859, 0)),  # 6
    Part.LineSegment(App.Vector(25, -185.642859, 0), App.Vector(-25, -185.642859, 0)),  # 7
    Part.LineSegment(App.Vector(65, -110.642859, 0), App.Vector(65, -160.642859, 0)),  # 8
    Part.LineSegment(App.Vector(65, -160.642859, 0), App.Vector(75, -160.642859, 0)),  # 9
    Part.LineSegment(App.Vector(75, -160.642859, 0), App.Vector(75, -110.642859, 0)),  # 10
    Part.LineSegment(App.Vector(75, -110.642859, 0), App.Vector(65, -110.642859, 0)),  # 11
], False)
sketch3.addConstraint([
    Sketcher.Constraint("Coincident", 0, 2, 1, 1),
    Sketcher.Constraint("Coincident", 1, 2, 2, 1),
    Sketcher.Constraint("Coincident", 2, 2, 3, 1),
    Sketcher.Constraint("Coincident", 3, 2, 0, 1),
    Sketcher.Constraint("Coincident", 4, 2, 5, 1),
    Sketcher.Constraint("Coincident", 5, 2, 6, 1),
    Sketcher.Constraint("Coincident", 6, 2, 7, 1),
    Sketcher.Constraint("Coincident", 7, 2, 4, 1),
    Sketcher.Constraint("Coincident", 8, 2, 9, 1),
    Sketcher.Constraint("Coincident", 9, 2, 10, 1),
    Sketcher.Constraint("Coincident", 10, 2, 11, 1),
    Sketcher.Constraint("Coincident", 11, 2, 8, 1),
    Sketcher.Constraint("Vertical", 0),
    Sketcher.Constraint("Horizontal", 1),
    Sketcher.Constraint("Vertical", 2),
    Sketcher.Constraint("Horizontal", 3),
    Sketcher.Constraint("Vertical", 4),
    Sketcher.Constraint("Horizontal", 5),
    Sketcher.Constraint("Vertical", 6),
    Sketcher.Constraint("Horizontal", 7),
    Sketcher.Constraint("Vertical", 8),
    Sketcher.Constraint("Horizontal", 9),
    Sketcher.Constraint("Vertical", 10),
    Sketcher.Constraint("Horizontal", 11),
    Sketcher.Constraint("Symmetric", 1, 2, 8, 2, -2),
    Sketcher.Constraint("Symmetric", 3, 2, 10, 2, -2),
    Sketcher.Constraint("Equal", 7, 0),
    Sketcher.Constraint("Equal", 11, 4),
    Sketcher.Constraint("DistanceX", 1, 1, 1, 2, Q("10 mm")),
    Sketcher.Constraint("DistanceX", 5, 1, 5, 2, Q("50 mm")),
    Sketcher.Constraint("DistanceX", 0, 2, -1, 1, Q("75 mm")),
    Sketcher.Constraint("DistanceX", 4, 2, -1, 1, Q("25 mm")),
    Sketcher.Constraint("DistanceY", 4, 2, 1, 2, Q("35 mm")),
    Sketcher.Constraint("DistanceY", 0, 2, -1, 1, Q("160.642859 mm")),
])
sketch3.setExpression("Constraints[28]", "Params.sketch3_width")
sketch3.setExpression("Constraints[29]", "Params.sketch3_width2")
pocket1 = body.newObject("PartDesign::Pocket", "Pocket")
pocket1.Profile = sketch3
pocket1.setExpression("Length", "Params.pocket1_length")

# Sketch on XY plane
sketch4 = body.newObject("Sketcher::SketchObject", "Sketch003")
sketch4.AttachmentSupport = (doc.getObject("XY_Plane"), [""])
sketch4.MapMode = "FlatFace"
sketch4.AttachmentOffset = App.Placement(App.Vector(0, 0, 10), App.Rotation())
sketch4.addGeometry([
    Part.LineSegment(App.Vector(-165, -65.642859, 0), App.Vector(-165, -75.642859, 0)),  # 0
    Part.LineSegment(App.Vector(-165, -75.642859, 0), App.Vector(-115, -75.642859, 0)),  # 1
    Part.LineSegment(App.Vector(-115, -75.642859, 0), App.Vector(-115, -65.642859, 0)),  # 2
    Part.LineSegment(App.Vector(-115, -65.642859, 0), App.Vector(-165, -65.642859, 0)),  # 3
    Part.LineSegment(App.Vector(-217.693966, -54.105374, 0), App.Vector(-209.078972, -49.027788, 0)),  # 4
    Part.LineSegment(App.Vector(-209.078972, -49.027788, 0), App.Vector(-234.466903, -5.952819, 0)),  # 5
    Part.LineSegment(App.Vector(-234.466903, -5.952819, 0), App.Vector(-243.081897, -11.030405, 0)),  # 6
    Part.LineSegment(App.Vector(-243.081897, -11.030405, 0), App.Vector(-217.693966, -54.105374, 0)),  # 7
    Part.LineSegment(App.Vector(-229.051724, 52.766048, 0), App.Vector(-220.59993, 47.42122, 0)),  # 8
    Part.LineSegment(App.Vector(-220.59993, 47.42122, 0), App.Vector(-167.151654, 131.939158, 0)),  # 9
    Part.LineSegment(App.Vector(-167.151654, 131.939158, 0), App.Vector(-175.603448, 137.283986, 0)),  # 10
    Part.LineSegment(App.Vector(-175.603448, 137.283986, 0), App.Vector(-229.051724, 52.766048, 0)),  # 11
    Part.LineSegment(App.Vector(-68.272344, 288.297343, 0), App.Vector(-76.724138, 293.642171, 0)),  # 12
    Part.LineSegment(App.Vector(-76.724138, 293.642171, 0), App.Vector(-130.172414, 209.124233, 0)),  # 13
    Part.LineSegment(App.Vector(-130.172414, 209.124233, 0), App.Vector(-121.72062, 203.779405, 0)),  # 14
    Part.LineSegment(App.Vector(-121.72062, 203.779405, 0), App.Vector(-68.272344, 288.297343, 0)),  # 15
    Part.LineSegment(App.Vector(-25, 335.90114, 0), App.Vector(-25, 325.90114, 0)),  # 16
    Part.LineSegment(App.Vector(-25, 325.90114, 0), App.Vector(25, 325.90114, 0)),  # 17
    Part.LineSegment(App.Vector(25, 325.90114, 0), App.Vector(25, 335.90114, 0)),  # 18
    Part.LineSegment(App.Vector(25, 335.90114, 0), App.Vector(-25, 335.90114, 0)),  # 19
    Part.LineSegment(App.Vector(115, -65.642859, 0), App.Vector(115, -75.642859, 0)),  # 20
    Part.LineSegment(App.Vector(115, -75.642859, 0), App.Vector(165, -75.642859, 0)),  # 21
    Part.LineSegment(App.Vector(165, -75.642859, 0), App.Vector(165, -65.642859, 0)),  # 22
    Part.LineSegment(App.Vector(165, -65.642859, 0), App.Vector(115, -65.642859, 0)),  # 23
    Part.LineSegment(App.Vector(243.081897, -11.030405, 0), App.Vector(234.466903, -5.952819, 0)),  # 24
    Part.LineSegment(App.Vector(234.466903, -5.952819, 0), App.Vector(209.078972, -49.027788, 0)),  # 25
    Part.LineSegment(App.Vector(209.078972, -49.027788, 0), App.Vector(217.693966, -54.105374, 0)),  # 26
    Part.LineSegment(App.Vector(217.693966, -54.105374, 0), App.Vector(243.081897, -11.030405, 0)),  # 27
    Part.LineSegment(App.Vector(175.603448, 137.283986, 0), App.Vector(167.151654, 131.939158, 0)),  # 28
    Part.LineSegment(App.Vector(167.151654, 131.939158, 0), App.Vector(220.59993, 47.42122, 0)),  # 29
    Part.LineSegment(App.Vector(220.59993, 47.42122, 0), App.Vector(229.051724, 52.766048, 0)),  # 30
    Part.LineSegment(App.Vector(229.051724, 52.766048, 0), App.Vector(175.603448, 137.283986, 0)),  # 31
    Part.LineSegment(App.Vector(121.72062, 203.779405, 0), App.Vector(130.172414, 209.124233, 0)),  # 32
    Part.LineSegment(App.Vector(130.172414, 209.124233, 0), App.Vector(76.724138, 293.642171, 0)),  # 33
    Part.LineSegment(App.Vector(76.724138, 293.642171, 0), App.Vector(68.272344, 288.297343, 0)),  # 34
    Part.LineSegment(App.Vector(68.272344, 288.297343, 0), App.Vector(121.72062, 203.779405, 0)),  # 35
], False)
sketch4.addConstraint([
    Sketcher.Constraint("Coincident", 0, 2, 1, 1),
    Sketcher.Constraint("Coincident", 1, 2, 2, 1),
    Sketcher.Constraint("Coincident", 2, 2, 3, 1),
    Sketcher.Constraint("Coincident", 3, 2, 0, 1),
    Sketcher.Constraint("Coincident", 4, 2, 5, 1),
    Sketcher.Constraint("Coincident", 5, 2, 6, 1),
    Sketcher.Constraint("Coincident", 6, 2, 7, 1),
    Sketcher.Constraint("Coincident", 7, 2, 4, 1),
    Sketcher.Constraint("Coincident", 8, 2, 9, 1),
    Sketcher.Constraint("Coincident", 9, 2, 10, 1),
    Sketcher.Constraint("Coincident", 10, 2, 11, 1),
    Sketcher.Constraint("Coincident", 11, 2, 8, 1),
    Sketcher.Constraint("Coincident", 12, 2, 13, 1),
    Sketcher.Constraint("Coincident", 13, 2, 14, 1),
    Sketcher.Constraint("Coincident", 14, 2, 15, 1),
    Sketcher.Constraint("Coincident", 15, 2, 12, 1),
    Sketcher.Constraint("Coincident", 16, 2, 17, 1),
    Sketcher.Constraint("Coincident", 17, 2, 18, 1),
    Sketcher.Constraint("Coincident", 18, 2, 19, 1),
    Sketcher.Constraint("Coincident", 19, 2, 16, 1),
    Sketcher.Constraint("Coincident", 20, 2, 21, 1),
    Sketcher.Constraint("Coincident", 21, 2, 22, 1),
    Sketcher.Constraint("Coincident", 22, 2, 23, 1),
    Sketcher.Constraint("Coincident", 23, 2, 20, 1),
    Sketcher.Constraint("Coincident", 24, 2, 25, 1),
    Sketcher.Constraint("Coincident", 25, 2, 26, 1),
    Sketcher.Constraint("Coincident", 26, 2, 27, 1),
    Sketcher.Constraint("Coincident", 27, 2, 24, 1),
    Sketcher.Constraint("Coincident", 28, 2, 29, 1),
    Sketcher.Constraint("Coincident", 29, 2, 30, 1),
    Sketcher.Constraint("Coincident", 30, 2, 31, 1),
    Sketcher.Constraint("Coincident", 31, 2, 28, 1),
    Sketcher.Constraint("Coincident", 32, 2, 33, 1),
    Sketcher.Constraint("Coincident", 33, 2, 34, 1),
    Sketcher.Constraint("Coincident", 34, 2, 35, 1),
    Sketcher.Constraint("Coincident", 35, 2, 32, 1),
    Sketcher.Constraint("Vertical", 0),
    Sketcher.Constraint("Horizontal", 1),
    Sketcher.Constraint("Vertical", 2),
    Sketcher.Constraint("Horizontal", 3),
    Sketcher.Constraint("Vertical", 16),
    Sketcher.Constraint("Horizontal", 17),
    Sketcher.Constraint("Vertical", 18),
    Sketcher.Constraint("Horizontal", 19),
    Sketcher.Constraint("Vertical", 20),
    Sketcher.Constraint("Horizontal", 21),
    Sketcher.Constraint("Vertical", 22),
    Sketcher.Constraint("Horizontal", 23),
    Sketcher.Constraint("Symmetric", 1, 2, 20, 2, -2),
    Sketcher.Constraint("Symmetric", 3, 2, 22, 2, -2),
    Sketcher.Constraint("Symmetric", 5, 2, 24, 2, -2),
    Sketcher.Constraint("Symmetric", 4, 2, 25, 2, -2),
    Sketcher.Constraint("Symmetric", 7, 2, 26, 2, -2),
    Sketcher.Constraint("Symmetric", 6, 2, 27, 2, -2),
    Sketcher.Constraint("Symmetric", 9, 2, 28, 2, -2),
    Sketcher.Constraint("Symmetric", 8, 2, 29, 2, -2),
    Sketcher.Constraint("Symmetric", 11, 2, 30, 2, -2),
    Sketcher.Constraint("Symmetric", 10, 2, 31, 2, -2),
    Sketcher.Constraint("Symmetric", 13, 2, 32, 2, -2),
    Sketcher.Constraint("Symmetric", 12, 2, 33, 2, -2),
    Sketcher.Constraint("Symmetric", 15, 2, 34, 2, -2),
    Sketcher.Constraint("Symmetric", 14, 2, 35, 2, -2),
    Sketcher.Constraint("Perpendicular", 4, 5),
    Sketcher.Constraint("Perpendicular", 5, 6),
    Sketcher.Constraint("Perpendicular", 6, 7),
    Sketcher.Constraint("Perpendicular", 8, 9),
    Sketcher.Constraint("Perpendicular", 9, 10),
    Sketcher.Constraint("Perpendicular", 10, 11),
    Sketcher.Constraint("Perpendicular", 11, 12),
    Sketcher.Constraint("Perpendicular", 12, 13),
    Sketcher.Constraint("Perpendicular", 13, 14),
    Sketcher.Constraint("Perpendicular", 14, 15),
    Sketcher.Constraint("Equal", 3, 17),
    Sketcher.Constraint("Equal", 2, 16),
    Sketcher.Constraint("Equal", 6, 8),
    Sketcher.Constraint("Equal", 10, 12),
    Sketcher.Constraint("Equal", 11, 13),
    Sketcher.Constraint("DistanceX", 1, 1, 1, 2, Q("50 mm")),
    Sketcher.Constraint("DistanceY", 0, 2, 0, 1, Q("10 mm")),
    Sketcher.Constraint("Distance", 4, Q("10 mm")),
    Sketcher.Constraint("Distance", 5, Q("50 mm")),
    Sketcher.Constraint("Distance", 9, Q("100 mm")),
    Sketcher.Constraint("DistanceX", 0, 2, -1, 1, Q("165 mm")),
    Sketcher.Constraint("DistanceX", 16, 2, -1, 1, Q("25 mm")),
    Sketcher.Constraint("DistanceY", 0, 2, -1, 1, Q("75.642859 mm")),
    Sketcher.Constraint("DistanceX", 4, 2, -1, 1, Q("209.078972 mm")),
    Sketcher.Constraint("DistanceY", 4, 2, -1, 1, Q("49.027788 mm")),
    Sketcher.Constraint("DistanceY", 5, 2, -1, 1, Q("5.952819 mm")),
    Sketcher.Constraint("DistanceX", 8, 2, -1, 1, Q("220.59993 mm")),
    Sketcher.Constraint("DistanceY", -1, 1, 8, 2, Q("47.42122 mm")),
    Sketcher.Constraint("DistanceY", -1, 1, 9, 2, Q("131.939158 mm")),
    Sketcher.Constraint("DistanceY", -1, 1, 12, 2, Q("293.642171 mm")),
    Sketcher.Constraint("DistanceX", 14, 2, -1, 1, Q("121.72062 mm")),
    Sketcher.Constraint("DistanceY", -1, 1, 16, 2, Q("325.90114 mm")),
])
sketch4.setExpression("Constraints[77]", "Params.sketch4_width")
sketch4.setExpression("Constraints[78]", "Params.sketch4_height")
sketch4.setExpression("Constraints[79]", "Params.sketch4_length")
sketch4.setExpression("Constraints[80]", "Params.sketch4_length2")
sketch4.setExpression("Constraints[81]", "Params.sketch4_length3")
pocket2 = body.newObject("PartDesign::Pocket", "Pocket001")
pocket2.Profile = sketch4
pocket2.setExpression("Length", "Params.pocket2_length")

doc.recompute()
